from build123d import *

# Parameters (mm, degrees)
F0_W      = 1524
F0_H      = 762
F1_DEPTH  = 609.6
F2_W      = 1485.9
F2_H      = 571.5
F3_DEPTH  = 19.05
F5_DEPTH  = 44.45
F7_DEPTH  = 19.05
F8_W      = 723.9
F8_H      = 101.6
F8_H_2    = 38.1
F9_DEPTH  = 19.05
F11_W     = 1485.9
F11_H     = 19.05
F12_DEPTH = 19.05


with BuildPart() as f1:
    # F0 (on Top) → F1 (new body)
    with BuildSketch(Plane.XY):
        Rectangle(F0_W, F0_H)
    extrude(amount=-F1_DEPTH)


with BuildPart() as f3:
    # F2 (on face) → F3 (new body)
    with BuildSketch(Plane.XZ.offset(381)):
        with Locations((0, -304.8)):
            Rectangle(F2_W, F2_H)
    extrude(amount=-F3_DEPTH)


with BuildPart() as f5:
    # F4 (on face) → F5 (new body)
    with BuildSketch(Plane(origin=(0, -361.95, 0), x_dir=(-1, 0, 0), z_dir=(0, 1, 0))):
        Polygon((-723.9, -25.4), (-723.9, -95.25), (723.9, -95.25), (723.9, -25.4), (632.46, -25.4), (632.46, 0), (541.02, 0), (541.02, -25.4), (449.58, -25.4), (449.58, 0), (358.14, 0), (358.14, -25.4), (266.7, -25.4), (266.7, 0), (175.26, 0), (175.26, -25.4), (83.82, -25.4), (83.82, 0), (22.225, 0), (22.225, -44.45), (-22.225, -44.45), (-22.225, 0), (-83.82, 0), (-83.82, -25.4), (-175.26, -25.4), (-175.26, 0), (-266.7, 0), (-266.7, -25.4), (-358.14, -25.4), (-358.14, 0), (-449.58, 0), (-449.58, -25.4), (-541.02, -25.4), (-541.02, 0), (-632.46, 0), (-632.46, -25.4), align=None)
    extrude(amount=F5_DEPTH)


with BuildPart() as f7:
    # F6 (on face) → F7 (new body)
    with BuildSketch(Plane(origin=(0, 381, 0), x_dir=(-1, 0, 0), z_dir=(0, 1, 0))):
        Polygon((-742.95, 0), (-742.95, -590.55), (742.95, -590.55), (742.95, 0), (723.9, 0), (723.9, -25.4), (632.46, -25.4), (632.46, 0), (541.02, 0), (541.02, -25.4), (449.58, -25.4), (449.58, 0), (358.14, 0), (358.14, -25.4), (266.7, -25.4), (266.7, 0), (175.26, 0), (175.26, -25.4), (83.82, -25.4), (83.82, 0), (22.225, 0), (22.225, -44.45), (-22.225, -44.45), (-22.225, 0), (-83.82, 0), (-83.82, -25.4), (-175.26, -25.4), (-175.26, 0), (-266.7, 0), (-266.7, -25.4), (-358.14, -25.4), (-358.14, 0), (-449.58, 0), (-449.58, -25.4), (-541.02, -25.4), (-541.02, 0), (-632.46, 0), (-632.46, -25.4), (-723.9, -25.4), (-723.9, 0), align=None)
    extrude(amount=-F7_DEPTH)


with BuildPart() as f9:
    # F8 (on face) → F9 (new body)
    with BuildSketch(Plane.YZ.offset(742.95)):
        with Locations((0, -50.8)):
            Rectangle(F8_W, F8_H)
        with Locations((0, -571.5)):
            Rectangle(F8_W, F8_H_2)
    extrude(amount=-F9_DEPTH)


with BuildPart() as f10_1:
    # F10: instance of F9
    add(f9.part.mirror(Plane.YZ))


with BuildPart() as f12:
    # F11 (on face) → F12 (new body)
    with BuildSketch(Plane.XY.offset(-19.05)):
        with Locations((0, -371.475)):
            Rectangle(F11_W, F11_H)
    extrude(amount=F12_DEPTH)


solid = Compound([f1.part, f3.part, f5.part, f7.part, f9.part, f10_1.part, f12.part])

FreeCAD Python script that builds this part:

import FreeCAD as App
import Part
import Sketcher
from FreeCAD import Vector
Q = App.Units.Quantity


def add_polygon(sketch, points):
    """Adds a closed chain of lines whose ends are joined by coincident constraints."""
    first, n = sketch.GeometryCount, len(points)
    for a, b in zip(points, points[1:] + points[:1]):
        sketch.addGeometry(Part.LineSegment(App.Vector(*a, 0), App.Vector(*b, 0)), False)
    for i in range(n):
        sketch.addConstraint(Sketcher.Constraint("Coincident", first + i, 2, first + (i + 1) % n, 1))

doc = App.newDocument("Part")
body = doc.addObject("PartDesign::Body", "Body")

# Sketch on XY plane
sketch1 = body.newObject("Sketcher::SketchObject", "Sketch")
sketch1.AttachmentSupport = (doc.getObject("XY_Plane"), [""])
sketch1.MapMode = "FlatFace"
add_polygon(sketch1, [(-762, 381), (-762, -381), (762, -381), (762, 381)])  # lines 0-3
sketch1.addConstraint([
    Sketcher.Constraint("Vertical", 0),
    Sketcher.Constraint("Horizontal", 1),
    Sketcher.Constraint("Vertical", 2),
    Sketcher.Constraint("Horizontal", 3),
    Sketcher.Constraint("Symmetric", 0, 2, 2, 2, -1, 1),
    Sketcher.Constraint("DistanceX", 1, 1, 1, 2, Q("60 in")),
    Sketcher.Constraint("DistanceY", 0, 2, 0, 1, Q("30 in")),
])
pad1 = body.newObject("PartDesign::Pad", "Pad")
pad1.Profile = sketch1
pad1.Length = Q("24 in")
pad1.Reversed = True
body2 = doc.addObject("PartDesign::Body", "Body001")

# Sketch on XZ plane
sketch2 = body2.newObject("Sketcher::SketchObject", "Sketch001")
sketch2.AttachmentSupport = (doc.getObject("XZ_Plane001"), [""])
sketch2.MapMode = "FlatFace"
sketch2.AttachmentOffset = App.Placement(Vector(0, 0, 15 * 25.4), App.Rotation())
add_polygon(sketch2, [(-742.95, -19.05), (-742.95, -590.55), (742.95, -590.55), (742.95, -19.05)])  # lines 0-3
sketch2.addConstraint([
    Sketcher.Constraint("Vertical", 0),
    Sketcher.Constraint("Horizontal", 1),
    Sketcher.Constraint("Vertical", 2),
    Sketcher.Constraint("Horizontal", 3),
    Sketcher.Constraint("DistanceX", 1, 1, 1, 2, Q("58.5 in")),
    Sketcher.Constraint("DistanceY", 0, 2, 0, 1, Q("22.5 in")),
    Sketcher.Constraint("DistanceX", 0, 2, -1, 1, Q("29.25 in")),
    Sketcher.Constraint("DistanceY", 0, 2, -1, 1, Q("23.25 in")),
])
pad2 = body2.newObject("PartDesign::Pad", "Pad001")
pad2.Profile = sketch2
pad2.Length = Q("0.75 in")
pad2.Reversed = True
body3 = doc.addObject("PartDesign::Body", "Body002")

# Sketch on XZ plane
sketch3 = body3.newObject("Sketcher::SketchObject", "Sketch002")
sketch3.AttachmentSupport = (doc.getObject("XZ_Plane002"), [""])
sketch3.MapMode = "FlatFace"
sketch3.AttachmentOffset = App.Placement(Vector(0, 0, 14.25 * 25.4), App.Rotation())
add_polygon(sketch3, [(723.9, -25.4), (723.9, -95.25), (-723.9, -95.25), (-723.9, -25.4), (-632.46, -25.4), (-632.46, 0), (-541.02, 0), (-541.02, -25.4), (-449.58, -25.4), (-449.58, 0), (-358.14, 0), (-358.14, -25.4), (-266.7, -25.4), (-266.7, 0), (-175.26, 0), (-175.26, -25.4), (-83.82, -25.4), (-83.82, 0), (-22.225, 0), (-22.225, -44.45), (22.225, -44.45), (22.225, 0), (83.82, 0), (83.82, -25.4), (175.26, -25.4), (175.26, 0), (266.7, 0), (266.7, -25.4), (358.14, -25.4), (358.14, 0), (449.58, 0), (449.58, -25.4), (541.02, -25.4), (541.02, 0), (632.46, 0), (632.46, -25.4)])  # lines 0-35
sketch3.addConstraint([
    Sketcher.Constraint("Vertical", 0),
    Sketcher.Constraint("Horizontal", 1),
    Sketcher.Constraint("Vertical", 2),
    Sketcher.Constraint("Horizontal", 3),
    Sketcher.Constraint("Vertical", 4),
    Sketcher.Constraint("Horizontal", 5),
    Sketcher.Constraint("Vertical", 6),
    Sketcher.Constraint("Horizontal", 7),
    Sketcher.Constraint("Vertical", 8),
    Sketcher.Constraint("Horizontal", 9),
    Sketcher.Constraint("Vertical", 10),
    Sketcher.Constraint("Horizontal", 11),
    Sketcher.Constraint("Vertical", 12),
    Sketcher.Constraint("Horizontal", 13),
    Sketcher.Constraint("Vertical", 14),
    Sketcher.Constraint("Horizontal", 15),
    Sketcher.Constraint("Vertical", 16),
    Sketcher.Constraint("Horizontal", 17),
    Sketcher.Constraint("Vertical", 18),
    Sketcher.Constraint("Horizontal", 19),
    Sketcher.Constraint("Vertical", 20),
    Sketcher.Constraint("Horizontal", 21),
    Sketcher.Constraint("Vertical", 22),
    Sketcher.Constraint("Horizontal", 23),
    Sketcher.Constraint("Vertical", 24),
    Sketcher.Constraint("Horizontal", 25),
    Sketcher.Constraint("Vertical", 26),
    Sketcher.Constraint("Horizontal", 27),
    Sketcher.Constraint("Vertical", 28),
    Sketcher.Constraint("Horizontal", 29),
    Sketcher.Constraint("Vertical", 30),
    Sketcher.Constraint("Horizontal", 31),
    Sketcher.Constraint("Vertical", 32),
    Sketcher.Constraint("Horizontal", 33),
    Sketcher.Constraint("Vertical", 34),
    Sketcher.Constraint("Horizontal", 35),
    Sketcher.Constraint("Symmetric", 17, 2, 20, 2, -1, 1),
    Sketcher.Constraint("Symmetric", 13, 2, 24, 2, -1, 1),
    Sketcher.Constraint("Symmetric", 9, 2, 28, 2, -1, 1),
    Sketcher.Constraint("Symmetric", 5, 2, 32, 2, -1, 1),
    Sketcher.Constraint("Symmetric", 16, 2, 21, 2, -2),
    Sketcher.Constraint("Symmetric", 12, 2, 25, 2, -2),
    Sketcher.Constraint("Symmetric", 8, 2, 29, 2, -2),
    Sketcher.Constraint("Symmetric", 4, 2, 33, 2, -2),
    Sketcher.Constraint("Symmetric", 2, 2, 35, 2, -2),
    Sketcher.Constraint("Horizontal", 3, 2, 6, 2),
    Sketcher.Constraint("Horizontal", 7, 2, 10, 2),
    Sketcher.Constraint("Horizontal", 11, 2, 14, 2),
    Sketcher.Constraint("Horizontal", 15, 2, 22, 2),
    Sketcher.Constraint("Horizontal", 23, 2, 26, 2),
    Sketcher.Constraint("Horizontal", 27, 2, 30, 2),
    Sketcher.Constraint("Equal", 3, 5),
    Sketcher.Constraint("Equal", 5, 7),
    Sketcher.Constraint("Equal", 7, 9),
    Sketcher.Constraint("Equal", 9, 11),
    Sketcher.Constraint("Equal", 11, 13),
    Sketcher.Constraint("Equal", 13, 15),
    Sketcher.Constraint("Equal", 19, 18),
    Sketcher.Constraint("DistanceX", 1, 2, 1, 1, Q("57 in")),
    Sketcher.Constraint("DistanceY", 4, 1, 4, 2, Q("1 in")),
    Sketcher.Constraint("DistanceX", 3, 1, 3, 2, Q("3.6 in")),
    Sketcher.Constraint("DistanceX", 19, 1, 19, 2, Q("1.75 in")),
    Sketcher.Constraint("DistanceY", 0, 2, 0, 1, Q("2.75 in")),
])
pad3 = body3.newObject("PartDesign::Pad", "Pad002")
pad3.Profile = sketch3
pad3.Length = Q("1.75 in")
pad3.Reversed = True
body4 = doc.addObject("PartDesign::Body", "Body003")

# Sketch on XZ plane
sketch4 = body4.newObject("Sketcher::SketchObject", "Sketch003")
sketch4.AttachmentSupport = (doc.getObject("XZ_Plane003"), [""])
sketch4.MapMode = "FlatFace"
sketch4.AttachmentOffset = App.Placement(Vector(0, 0, -15 * 25.4), App.Rotation())
add_polygon(sketch4, [(742.95, 0), (742.95, -590.55), (-742.95, -590.55), (-742.95, 0), (-723.9, 0), (-723.9, -25.4), (-632.46, -25.4), (-632.46, 0), (-541.02, 0), (-541.02, -25.4), (-449.58, -25.4), (-449.58, 0), (-358.14, 0), (-358.14, -25.4), (-266.7, -25.4), (-266.7, 0), (-175.26, 0), (-175.26, -25.4), (-83.82, -25.4), (-83.82, 0), (-22.225, 0), (-22.225, -44.45), (22.225, -44.45), (22.225, 0), (83.82, 0), (83.82, -25.4), (175.26, -25.4), (175.26, 0), (266.7, 0), (266.7, -25.4), (358.14, -25.4), (358.14, 0), (449.58, 0), (449.58, -25.4), (541.02, -25.4), (541.02, 0), (632.46, 0), (632.46, -25.4), (723.9, -25.4), (723.9, 0)])  # lines 0-39
sketch4.addConstraint([
    Sketcher.Constraint("Vertical", 0),
    Sketcher.Constraint("Horizontal", 1),
    Sketcher.Constraint("Vertical", 2),
    Sketcher.Constraint("Horizontal", 3),
    Sketcher.Constraint("Vertical", 4),
    Sketcher.Constraint("Horizontal", 5),
    Sketcher.Constraint("Vertical", 6),
    Sketcher.Constraint("Horizontal", 7),
    Sketcher.Constraint("Vertical", 8),
    Sketcher.Constraint("Horizontal", 9),
    Sketcher.Constraint("Vertical", 10),
    Sketcher.Constraint("Horizontal", 11),
    Sketcher.Constraint("Vertical", 12),
    Sketcher.Constraint("Horizontal", 13),
    Sketcher.Constraint("Vertical", 14),
    Sketcher.Constraint("Horizontal", 15),
    Sketcher.Constraint("Vertical", 16),
    Sketcher.Constraint("Horizontal", 17),
    Sketcher.Constraint("Vertical", 18),
    Sketcher.Constraint("Horizontal", 19),
    Sketcher.Constraint("Vertical", 20),
    Sketcher.Constraint("Horizontal", 21),
    Sketcher.Constraint("Vertical", 22),
    Sketcher.Constraint("Horizontal", 23),
    Sketcher.Constraint("Vertical", 24),
    Sketcher.Constraint("Horizontal", 25),
    Sketcher.Constraint("Vertical", 26),
    Sketcher.Constraint("Horizontal", 27),
    Sketcher.Constraint("Vertical", 28),
    Sketcher.Constraint("Horizontal", 29),
    Sketcher.Constraint("Vertical", 30),
    Sketcher.Constraint("Horizontal", 31),
    Sketcher.Constraint("Vertical", 32),
    Sketcher.Constraint("Horizontal", 33),
    Sketcher.Constraint("Vertical", 34),
    Sketcher.Constraint("Horizontal", 35),
    Sketcher.Constraint("Vertical", 36),
    Sketcher.Constraint("Horizontal", 37),
    Sketcher.Constraint("Vertical", 38),
    Sketcher.Constraint("Horizontal", 39),
    Sketcher.Constraint("Symmetric", 19, 2, 22, 2, -1, 1),
    Sketcher.Constraint("Symmetric", 15, 2, 26, 2, -1, 1),
    Sketcher.Constraint("Symmetric", 11, 2, 30, 2, -1, 1),
    Sketcher.Constraint("Symmetric", 7, 2, 34, 2, -1, 1),
    Sketcher.Constraint("Symmetric", 3, 2, 38, 2, -1, 1),
    Sketcher.Constraint("Symmetric", 18, 2, 23, 2, -2),
    Sketcher.Constraint("Symmetric", 14, 2, 27, 2, -2),
    Sketcher.Constraint("Symmetric", 10, 2, 31, 2, -2),
    Sketcher.Constraint("Symmetric", 6, 2, 35, 2, -2),
    Sketcher.Constraint("Symmetric", 2, 2, 39, 2, -2),
    Sketcher.Constraint("Horizontal", 5, 2, 8, 2),
    Sketcher.Constraint("Horizontal", 9, 2, 12, 2),
    Sketcher.Constraint("Horizontal", 13, 2, 16, 2),
    Sketcher.Constraint("Horizontal", 17, 2, 24, 2),
    Sketcher.Constraint("Horizontal", 25, 2, 28, 2),
    Sketcher.Constraint("Horizontal", 29, 2, 32, 2),
    Sketcher.Constraint("Horizontal", 33, 2, 36, 2),
    Sketcher.Constraint("Equal", 5, 7),
    Sketcher.Constraint("Equal", 7, 9),
    Sketcher.Constraint("Equal", 9, 11),
    Sketcher.Constraint("Equal", 11, 13),
    Sketcher.Constraint("Equal", 13, 15),
    Sketcher.Constraint("Equal", 15, 17),
    Sketcher.Constraint("Equal", 21, 20),
    Sketcher.Constraint("DistanceY", 4, 2, 4, 1, Q("1 in")),
    Sketcher.Constraint("DistanceX", 1, 2, 1, 1, Q("58.5 in")),
    Sketcher.Constraint("DistanceX", 5, 1, 5, 2, Q("3.6 in")),
    Sketcher.Constraint("DistanceX", 3, 1, 3, 2, Q("0.75 in")),
    Sketcher.Constraint("DistanceX", 21, 1, 21, 2, Q("1.75 in")),
    Sketcher.Constraint("DistanceY", 0, 2, 0, 1, Q("23.25 in")),
])
pad4 = body4.newObject("PartDesign::Pad", "Pad003")
pad4.Profile = sketch4
pad4.Length = Q("0.75 in")
body5 = doc.addObject("PartDesign::Body", "Body004")
body5.AllowCompound = True

# Sketch on YZ plane
sketch5 = body5.newObject("Sketcher::SketchObject", "Sketch004")
sketch5.AttachmentSupport = (doc.getObject("YZ_Plane004"), [""])
sketch5.MapMode = "FlatFace"
sketch5.AttachmentOffset = App.Placement(Vector(0, 0, 29.25 * 25.4), App.Rotation())
add_polygon(sketch5, [(-361.95, 0), (-361.95, -101.6), (361.95, -101.6), (361.95, 0)])  # lines 0-3
add_polygon(sketch5, [(-361.95, -552.45), (-361.95, -590.55), (361.95, -590.55), (361.95, -552.45)])  # lines 4-7
sketch5.addConstraint([
    Sketcher.Constraint("Vertical", 0),
    Sketcher.Constraint("Horizontal", 1),
    Sketcher.Constraint("Vertical", 2),
    Sketcher.Constraint("Horizontal", 3),
    Sketcher.Constraint("Vertical", 4),
    Sketcher.Constraint("Horizontal", 5),
    Sketcher.Constraint("Vertical", 6),
    Sketcher.Constraint("Horizontal", 7),
    Sketcher.Constraint("Symmetric", 2, 2, 3, 2, -1, 1),
    Sketcher.Constraint("Vertical", 3, 2, 4, 2),
    Sketcher.Constraint("Vertical", 2, 2, 5, 2),
    Sketcher.Constraint("DistanceY", 0, 2, 0, 1, Q("4 in")),
    Sketcher.Constraint("DistanceX", 1, 1, 1, 2, Q("28.5 in")),
    Sketcher.Constraint("DistanceY", 4, 2, 4, 1, Q("1.5 in")),
    Sketcher.Constraint("DistanceY", 4, 2, -1, 1, Q("23.25 in")),
])
pad5 = body5.newObject("PartDesign::Pad", "Pad004")
pad5.Profile = sketch5
pad5.Length = Q("0.75 in")
pad5.Reversed = True
body6 = doc.addObject("PartDesign::Body", "Body005")
body6.AllowCompound = True
doc.recompute()

mirroring = doc.addObject("Part::Mirroring", "Mirroring")
mirroring.Source = body5
mirroring.Base = Vector(0, 0, 0)
mirroring.Normal = Vector(1, 0, 0)
body6.BaseFeature = mirroring
doc.recompute()
body7 = doc.addObject("PartDesign::Body", "Body006")

# Sketch on XY plane
sketch6 = body7.newObject("Sketcher::SketchObject", "Sketch005")
sketch6.AttachmentSupport = (doc.getObject("XY_Plane006"), [""])
sketch6.MapMode = "FlatFace"
sketch6.AttachmentOffset = App.Placement(Vector(0, 0, -0.75 * 25.4), App.Rotation())
add_polygon(sketch6, [(-742.95, -361.95), (-742.95, -381), (742.95, -381), (742.95, -361.95)])  # lines 0-3
sketch6.addConstraint([
    Sketcher.Constraint("Vertical", 0),
    Sketcher.Constraint("Horizontal", 1),
    Sketcher.Constraint("Vertical", 2),
    Sketcher.Constraint("Horizontal", 3),
    Sketcher.Constraint("DistanceX", 1, 1, 1, 2, Q("58.5 in")),
    Sketcher.Constraint("DistanceY", 0, 2, -1, 1, Q("15 in")),
    Sketcher.Constraint("DistanceY", 0, 2, 0, 1, Q("0.75 in")),
    Sketcher.Constraint("DistanceX", 0, 2, -1, 1, Q("29.25 in")),
])
pad6 = body7.newObject("PartDesign::Pad", "Pad005")
pad6.Profile = sketch6
pad6.Length = Q("0.75 in")
mirroring.Visibility = False

doc.recompute()
